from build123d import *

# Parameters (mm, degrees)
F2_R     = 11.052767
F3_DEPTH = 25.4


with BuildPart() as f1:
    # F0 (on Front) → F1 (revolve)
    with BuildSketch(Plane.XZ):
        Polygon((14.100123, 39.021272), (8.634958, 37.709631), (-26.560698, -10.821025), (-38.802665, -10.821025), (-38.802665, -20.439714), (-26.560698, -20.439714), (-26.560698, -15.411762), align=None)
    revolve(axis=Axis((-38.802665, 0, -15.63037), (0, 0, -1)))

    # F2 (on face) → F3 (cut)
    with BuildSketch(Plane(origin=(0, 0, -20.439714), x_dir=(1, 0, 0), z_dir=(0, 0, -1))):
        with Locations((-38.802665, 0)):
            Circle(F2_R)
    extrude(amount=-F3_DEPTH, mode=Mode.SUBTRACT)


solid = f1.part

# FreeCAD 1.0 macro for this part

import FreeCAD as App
import Part
import Sketcher
Q = App.Units.Quantity

doc = App.newDocument("Part")
body = doc.addObject("PartDesign::Body", "Body")

# Sketch on XZ plane
sketch1 = doc.addObject("Sketcher::SketchObject", "Sketch")
body.addObject(sketch1)
sketch1.AttachmentSupport = (doc.XZ_Plane, [""])
sketch1.MapMode = "FlatFace"
sketch1.addGeometry(Part.LineSegment(App.Vector(14.100123, 39.021272, 0), App.Vector(8.634958, 37.709631, 0)), False)
sketch1.addGeometry(Part.LineSegment(App.Vector(8.634958, 37.709631, 0), App.Vector(-26.560698, -10.821025, 0)), False)
sketch1.addGeometry(Part.LineSegment(App.Vector(-26.560698, -10.821025, 0), App.Vector(-38.802665, -10.821025, 0)), False)
sketch1.addGeometry(Part.LineSegment(App.Vector(-38.802665, -10.821025, 0), App.Vector(-38.802665, -20.439714, 0)), False)
sketch1.addGeometry(Part.LineSegment(App.Vector(-38.802665, -20.439714, 0), App.Vector(-26.560698, -20.439714, 0)), False)
sketch1.addGeometry(Part.LineSegment(App.Vector(-26.560698, -20.439714, 0), App.Vector(-26.560698, -15.411762, 0)), False)
sketch1.addGeometry(Part.LineSegment(App.Vector(-26.560698, -15.411762, 0), App.Vector(14.100123, 39.021272, 0)), False)
sketch1.addGeometry(Part.LineSegment(App.Vector(-38.802665, 39.021272, 0), App.Vector(-38.802665, -20.439714, 0)), True)  # axis
sketch1.addConstraint(Sketcher.Constraint("Coincident", 0, 2, 1, 1))
sketch1.addConstraint(Sketcher.Constraint("Coincident", 1, 2, 2, 1))
sketch1.addConstraint(Sketcher.Constraint("Coincident", 2, 2, 3, 1))
sketch1.addConstraint(Sketcher.Constraint("Coincident", 3, 2, 4, 1))
sketch1.addConstraint(Sketcher.Constraint("Coincident", 4, 2, 5, 1))
sketch1.addConstraint(Sketcher.Constraint("Coincident", 5, 2, 6, 1))
sketch1.addConstraint(Sketcher.Constraint("Coincident", 6, 2, 0, 1))
sketch1.addConstraint(Sketcher.Constraint("Horizontal", 2))
sketch1.addConstraint(Sketcher.Constraint("Vertical", 3))
sketch1.addConstraint(Sketcher.Constraint("Horizontal", 4))
sketch1.addConstraint(Sketcher.Constraint("Vertical", 5))
sketch1.addConstraint(Sketcher.Constraint("Vertical", 7))
sketch1.addConstraint(Sketcher.Constraint("Coincident", 7, 2, 3, 2))
sketch1.addConstraint(Sketcher.Constraint("Horizontal", 6, 2, 7, 1))
sketch1.addConstraint(Sketcher.Constraint("Vertical", 1, 2, 4, 2))
sketch1.addConstraint(Sketcher.Constraint("DistanceY", 3, 2, 3, 1, 9.618689))
sketch1.addConstraint(Sketcher.Constraint("DistanceY", 5, 1, 5, 2, 5.027952))
sketch1.addConstraint(Sketcher.Constraint("Distance", 0, 5.620359))
sketch1.addConstraint(Sketcher.Constraint("DistanceX", 2, 2, 2, 1, 12.241967))
sketch1.addConstraint(Sketcher.Constraint("DistanceY", 7, 2, 7, 1, 59.460986))
sketch1.addConstraint(Sketcher.Constraint("DistanceY", -1, 1, 0, 2, 37.709631))
sketch1.addConstraint(Sketcher.Constraint("DistanceY", 0, 2, 6, 2, 1.311641))
sketch1.addConstraint(Sketcher.Constraint("DistanceX", 1, 2, 6, 2, 40.660821))
sketch1.addConstraint(Sketcher.Constraint("DistanceX", -1, 1, 0, 2, 8.634958))
revolution = doc.addObject("PartDesign::Revolution", "Revolution")
body.addObject(revolution)
revolution.Profile = sketch1
revolution.ReferenceAxis = (sketch1, ["Axis0"])
revolution.Angle = 360

# Sketch on XY plane
sketch2 = doc.addObject("Sketcher::SketchObject", "Sketch001")
body.addObject(sketch2)
sketch2.AttachmentSupport = (doc.XY_Plane, [""])
sketch2.MapMode = "FlatFace"
sketch2.AttachmentOffset = App.Placement(App.Vector(0, 0, -20.439714), App.Rotation())
sketch2.addGeometry(Part.Circle(App.Vector(-38.802665, 0, 0), App.Vector(0, 0, 1), 11.052767), False)
sketch2.addConstraint(Sketcher.Constraint("PointOnObject", 0, 3, -1))
sketch2.addConstraint(Sketcher.Constraint("Diameter", 0, 22.105534))
sketch2.addConstraint(Sketcher.Constraint("DistanceX", 0, 3, -1, 1, 38.802665))
pocket1 = doc.addObject("PartDesign::Pocket", "Pocket")
body.addObject(pocket1)
pocket1.Profile = sketch2
pocket1.Length = Q("1 in")
pocket1.Reversed = True

doc.recompute()
